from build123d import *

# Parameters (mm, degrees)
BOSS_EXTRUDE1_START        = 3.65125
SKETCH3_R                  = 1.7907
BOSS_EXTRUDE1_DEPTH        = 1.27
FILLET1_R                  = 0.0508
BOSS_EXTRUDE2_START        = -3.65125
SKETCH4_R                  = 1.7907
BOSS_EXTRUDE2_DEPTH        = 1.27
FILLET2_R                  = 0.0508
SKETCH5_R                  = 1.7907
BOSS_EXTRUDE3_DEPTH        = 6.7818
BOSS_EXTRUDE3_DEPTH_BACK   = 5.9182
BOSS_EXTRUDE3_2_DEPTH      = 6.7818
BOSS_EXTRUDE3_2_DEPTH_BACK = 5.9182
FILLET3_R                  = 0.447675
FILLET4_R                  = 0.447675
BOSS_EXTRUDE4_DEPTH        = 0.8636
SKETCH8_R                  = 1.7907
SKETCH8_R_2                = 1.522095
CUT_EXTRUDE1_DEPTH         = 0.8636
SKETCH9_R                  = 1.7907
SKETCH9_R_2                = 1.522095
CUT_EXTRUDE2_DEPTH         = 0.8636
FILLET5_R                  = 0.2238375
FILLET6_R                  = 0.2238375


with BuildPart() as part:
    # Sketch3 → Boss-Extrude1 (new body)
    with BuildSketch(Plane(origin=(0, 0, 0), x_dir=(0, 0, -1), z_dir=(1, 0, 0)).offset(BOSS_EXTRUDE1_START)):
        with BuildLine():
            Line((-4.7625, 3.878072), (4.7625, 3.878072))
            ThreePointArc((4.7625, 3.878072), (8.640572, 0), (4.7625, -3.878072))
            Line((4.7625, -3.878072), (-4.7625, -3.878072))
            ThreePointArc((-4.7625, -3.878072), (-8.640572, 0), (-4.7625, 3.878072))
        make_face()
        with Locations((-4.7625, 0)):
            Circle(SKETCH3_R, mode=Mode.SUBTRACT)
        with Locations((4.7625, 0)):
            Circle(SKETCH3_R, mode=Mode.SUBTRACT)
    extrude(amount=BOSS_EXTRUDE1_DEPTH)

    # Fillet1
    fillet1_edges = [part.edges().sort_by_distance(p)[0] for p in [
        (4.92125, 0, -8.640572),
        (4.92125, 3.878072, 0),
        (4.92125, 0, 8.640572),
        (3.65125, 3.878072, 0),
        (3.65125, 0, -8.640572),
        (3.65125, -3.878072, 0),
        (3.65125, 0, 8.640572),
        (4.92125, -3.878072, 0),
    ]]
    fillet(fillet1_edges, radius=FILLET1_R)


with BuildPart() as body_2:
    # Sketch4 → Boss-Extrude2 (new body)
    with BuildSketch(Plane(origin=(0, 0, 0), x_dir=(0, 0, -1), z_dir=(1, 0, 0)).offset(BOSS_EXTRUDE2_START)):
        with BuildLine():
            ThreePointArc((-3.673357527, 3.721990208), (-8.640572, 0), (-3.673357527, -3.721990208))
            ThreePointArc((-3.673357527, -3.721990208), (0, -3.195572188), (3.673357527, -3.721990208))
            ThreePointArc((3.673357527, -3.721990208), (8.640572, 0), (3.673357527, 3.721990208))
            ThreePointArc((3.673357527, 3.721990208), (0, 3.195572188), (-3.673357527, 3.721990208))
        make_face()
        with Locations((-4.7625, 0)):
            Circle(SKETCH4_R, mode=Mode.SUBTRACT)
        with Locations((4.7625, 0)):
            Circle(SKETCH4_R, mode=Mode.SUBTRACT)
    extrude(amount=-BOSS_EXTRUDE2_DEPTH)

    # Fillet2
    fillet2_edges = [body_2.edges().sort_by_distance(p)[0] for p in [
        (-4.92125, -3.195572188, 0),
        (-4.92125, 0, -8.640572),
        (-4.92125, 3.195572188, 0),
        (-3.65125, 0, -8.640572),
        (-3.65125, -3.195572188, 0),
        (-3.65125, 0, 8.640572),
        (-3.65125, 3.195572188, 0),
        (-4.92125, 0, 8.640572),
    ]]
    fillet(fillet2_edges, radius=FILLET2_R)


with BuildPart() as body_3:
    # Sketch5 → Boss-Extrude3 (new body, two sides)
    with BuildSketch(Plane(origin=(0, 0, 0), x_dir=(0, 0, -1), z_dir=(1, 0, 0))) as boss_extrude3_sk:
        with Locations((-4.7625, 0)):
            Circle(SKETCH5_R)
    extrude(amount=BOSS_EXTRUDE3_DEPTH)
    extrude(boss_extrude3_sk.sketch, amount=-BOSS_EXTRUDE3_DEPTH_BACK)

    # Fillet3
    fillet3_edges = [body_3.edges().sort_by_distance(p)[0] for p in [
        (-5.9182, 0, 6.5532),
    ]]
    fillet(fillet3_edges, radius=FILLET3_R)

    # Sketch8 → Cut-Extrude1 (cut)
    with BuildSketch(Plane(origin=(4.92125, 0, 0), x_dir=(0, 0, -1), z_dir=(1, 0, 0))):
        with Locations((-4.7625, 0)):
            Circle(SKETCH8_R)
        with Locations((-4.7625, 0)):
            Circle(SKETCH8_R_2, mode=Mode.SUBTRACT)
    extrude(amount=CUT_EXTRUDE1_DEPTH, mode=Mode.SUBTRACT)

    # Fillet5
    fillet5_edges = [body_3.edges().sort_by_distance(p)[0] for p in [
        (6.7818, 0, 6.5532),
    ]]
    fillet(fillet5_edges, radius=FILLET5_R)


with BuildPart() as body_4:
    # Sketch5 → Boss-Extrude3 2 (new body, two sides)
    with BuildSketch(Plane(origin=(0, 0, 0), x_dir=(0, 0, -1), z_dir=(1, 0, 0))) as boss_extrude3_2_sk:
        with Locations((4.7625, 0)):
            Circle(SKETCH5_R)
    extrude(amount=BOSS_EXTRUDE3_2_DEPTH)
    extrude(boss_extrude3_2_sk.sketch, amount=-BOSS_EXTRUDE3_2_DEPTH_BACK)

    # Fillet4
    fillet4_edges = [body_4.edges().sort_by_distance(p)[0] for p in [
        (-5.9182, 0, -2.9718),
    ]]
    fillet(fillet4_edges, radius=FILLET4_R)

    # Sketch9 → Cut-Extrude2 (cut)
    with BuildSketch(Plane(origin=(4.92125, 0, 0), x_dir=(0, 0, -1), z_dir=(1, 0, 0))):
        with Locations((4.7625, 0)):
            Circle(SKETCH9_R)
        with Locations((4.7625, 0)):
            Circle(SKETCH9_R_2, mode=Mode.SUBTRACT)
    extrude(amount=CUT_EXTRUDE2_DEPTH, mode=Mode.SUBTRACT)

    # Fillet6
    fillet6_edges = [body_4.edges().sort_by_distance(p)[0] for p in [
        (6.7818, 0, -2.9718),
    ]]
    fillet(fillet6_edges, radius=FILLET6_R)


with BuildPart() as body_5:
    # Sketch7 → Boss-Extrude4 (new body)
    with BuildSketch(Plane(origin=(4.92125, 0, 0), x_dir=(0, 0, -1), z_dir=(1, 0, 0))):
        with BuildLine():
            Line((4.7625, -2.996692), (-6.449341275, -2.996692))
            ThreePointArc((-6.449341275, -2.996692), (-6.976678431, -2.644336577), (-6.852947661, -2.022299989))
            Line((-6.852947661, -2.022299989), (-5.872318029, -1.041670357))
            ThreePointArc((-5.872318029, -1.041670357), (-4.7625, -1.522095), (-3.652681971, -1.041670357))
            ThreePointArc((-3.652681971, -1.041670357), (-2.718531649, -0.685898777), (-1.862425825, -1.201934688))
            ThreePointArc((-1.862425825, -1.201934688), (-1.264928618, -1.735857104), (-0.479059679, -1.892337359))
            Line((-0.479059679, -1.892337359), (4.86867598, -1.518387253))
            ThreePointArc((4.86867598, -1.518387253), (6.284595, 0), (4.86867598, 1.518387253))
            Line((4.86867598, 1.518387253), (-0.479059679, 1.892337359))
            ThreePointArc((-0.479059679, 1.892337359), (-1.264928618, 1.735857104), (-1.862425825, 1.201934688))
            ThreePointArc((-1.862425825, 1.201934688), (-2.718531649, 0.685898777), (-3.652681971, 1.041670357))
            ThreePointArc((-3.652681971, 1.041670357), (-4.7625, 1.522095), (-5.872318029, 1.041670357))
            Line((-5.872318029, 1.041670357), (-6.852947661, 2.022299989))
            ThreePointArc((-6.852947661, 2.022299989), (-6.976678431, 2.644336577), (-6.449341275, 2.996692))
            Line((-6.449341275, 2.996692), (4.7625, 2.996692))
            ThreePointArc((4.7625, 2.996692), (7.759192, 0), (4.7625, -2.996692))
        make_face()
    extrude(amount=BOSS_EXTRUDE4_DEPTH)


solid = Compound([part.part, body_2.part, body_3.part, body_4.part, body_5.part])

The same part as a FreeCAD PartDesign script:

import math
import FreeCAD as App
import Part
import Sketcher
Q = App.Units.Quantity


def edges_at(feature, points):
    """Names of the edges that pass closest to the given points."""
    edges = feature.Shape.Edges
    near = lambda p: min(range(len(edges)), key=lambda i: edges[i].distToShape(Part.Vertex(*p))[0])
    return sorted({f"Edge{near(p) + 1}" for p in points})

doc = App.newDocument("Part")
body = doc.addObject("PartDesign::Body", "Body")

# Sketch on YZ plane
sketch1 = body.newObject("Sketcher::SketchObject", "Sketch")
sketch1.AttachmentSupport = (doc.getObject("YZ_Plane"), [""])
sketch1.MapMode = "FlatFace"
sketch1.AttachmentOffset = App.Placement(App.Vector(0, 0, 3.65125), App.Rotation())
sketch1.addGeometry(Part.LineSegment(App.Vector(3.9, -4.8, 0), App.Vector(3.9, 4.8, 0)), False)
sketch1.addGeometry(Part.ArcOfCircle(Part.Circle(App.Vector(0, 4.8, 0), App.Vector(0, 0, 1), 3.9), math.radians(0), math.radians(180)), False)
sketch1.addGeometry(Part.LineSegment(App.Vector(-3.9, 4.8, 0), App.Vector(-3.9, -4.8, 0)), False)
sketch1.addGeometry(Part.ArcOfCircle(Part.Circle(App.Vector(0, -4.8, 0), App.Vector(0, 0, 1), 3.9), math.radians(180), math.radians(360)), False)
sketch1.addGeometry(Part.Circle(App.Vector(0, -4.8, 0), App.Vector(0, 0, 1), 1.8), False)
sketch1.addGeometry(Part.Circle(App.Vector(0, 4.8, 0), App.Vector(0, 0, 1), 1.8), False)
sketch1.addConstraint(Sketcher.Constraint("Tangent", 0, 2, 1, 1))
sketch1.addConstraint(Sketcher.Constraint("Tangent", 1, 2, 2, 1))
sketch1.addConstraint(Sketcher.Constraint("Tangent", 2, 2, 3, 1))
sketch1.addConstraint(Sketcher.Constraint("Tangent", 3, 2, 0, 1))
sketch1.addConstraint(Sketcher.Constraint("Vertical", 0))
sketch1.addConstraint(Sketcher.Constraint("Vertical", 2))
sketch1.addConstraint(Sketcher.Constraint("Coincident", 4, 3, 3, 3))
sketch1.addConstraint(Sketcher.Constraint("Coincident", 5, 3, 1, 3))
sketch1.addConstraint(Sketcher.Constraint("Equal", 4, 5))
sketch1.addConstraint(Sketcher.Constraint("Symmetric", 1, 3, 3, 3, -1, 1))
sketch1.addConstraint(Sketcher.Constraint("Diameter", 4, Q("0.141 in")))
sketch1.addConstraint(Sketcher.Constraint("DistanceY", 0, 1, 0, 2, Q("0.375 in")))
sketch1.addConstraint(Sketcher.Constraint("Radius", 1, 3.878072))
pad1 = body.newObject("PartDesign::Pad", "Pad")
pad1.Profile = sketch1
pad1.Length = Q("0.05 in")
doc.recompute()

fillet = body.newObject("PartDesign::Fillet", "Fillet")
fillet.Base = (pad1, edges_at(pad1, [
    (4.921, 0, -8.641),
    (4.921, 3.878, 0),
    (4.921, 0, 8.641),
    (3.651, 3.878, 0),
    (3.651, 0, -8.641),
    (3.651, -3.878, 0),
    (3.651, 0, 8.641),
    (4.921, -3.878, 0),
]))
fillet.Radius = Q("0.002 in")
body2 = doc.addObject("PartDesign::Body", "Body001")

# Sketch on YZ plane
sketch2 = body2.newObject("Sketcher::SketchObject", "Sketch001")
sketch2.AttachmentSupport = (doc.getObject("YZ_Plane001"), [""])
sketch2.MapMode = "FlatFace"
sketch2.AttachmentOffset = App.Placement(App.Vector(0, 0, -3.65125), App.Rotation())
sketch2.addGeometry(Part.ArcOfCircle(Part.Circle(App.Vector(0, 4.8, 0), App.Vector(0, 0, 1), 3.9), math.radians(-16), math.radians(196)), False)
sketch2.addGeometry(Part.ArcOfCircle(Part.Circle(App.Vector(-16.3, 0, 0), App.Vector(0, 0, 1), 13.1), math.radians(-16), math.radians(16)), False)
sketch2.addGeometry(Part.ArcOfCircle(Part.Circle(App.Vector(0, -4.8, 0), App.Vector(0, 0, 1), 3.9), math.radians(164), math.radians(376)), False)
sketch2.addGeometry(Part.ArcOfCircle(Part.Circle(App.Vector(16.3, 0, 0), App.Vector(0, 0, 1), 13.1), math.radians(164), math.radians(196)), False)
sketch2.addGeometry(Part.Circle(App.Vector(0, 4.8, 0), App.Vector(0, 0, 1), 1.8), False)
sketch2.addGeometry(Part.Circle(App.Vector(0, -4.8, 0), App.Vector(0, 0, 1), 1.8), False)
sketch2.addConstraint(Sketcher.Constraint("Tangent", 0, 2, 1, 2))
sketch2.addConstraint(Sketcher.Constraint("Tangent", 1, 1, 2, 1))
sketch2.addConstraint(Sketcher.Constraint("Tangent", 2, 2, 3, 2))
sketch2.addConstraint(Sketcher.Constraint("Tangent", 3, 1, 0, 1))
sketch2.addConstraint(Sketcher.Constraint("Coincident", 4, 3, 0, 3))
sketch2.addConstraint(Sketcher.Constraint("Coincident", 5, 3, 2, 3))
sketch2.addConstraint(Sketcher.Constraint("Equal", 0, 2))
sketch2.addConstraint(Sketcher.Constraint("Equal", 1, 3))
sketch2.addConstraint(Sketcher.Constraint("Equal", 4, 5))
sketch2.addConstraint(Sketcher.Constraint("Symmetric", 0, 3, 2, 3, -1, 1))
sketch2.addConstraint(Sketcher.Constraint("PointOnObject", 0, 3, -2))
sketch2.addConstraint(Sketcher.Constraint("Diameter", 4, Q("0.141 in")))
sketch2.addConstraint(Sketcher.Constraint("DistanceY", -1, 1, 0, 3, Q("0.1875 in")))
sketch2.addConstraint(Sketcher.Constraint("Radius", 0, 3.878072))
sketch2.addConstraint(Sketcher.Constraint("Radius", 1, 13.079597))
pad2 = body2.newObject("PartDesign::Pad", "Pad001")
pad2.Profile = sketch2
pad2.Length = Q("0.05 in")
pad2.Reversed = True
doc.recompute()

fillet2 = body2.newObject("PartDesign::Fillet", "Fillet001")
fillet2.Base = (pad2, edges_at(pad2, [
    (-4.921, -3.196, 0),
    (-4.921, 0, -8.641),
    (-4.921, 3.196, 0),
    (-3.651, 0, -8.641),
    (-3.651, -3.196, 0),
    (-3.651, 0, 8.641),
    (-3.651, 3.196, 0),
    (-4.921, 0, 8.641),
]))
fillet2.Radius = Q("0.002 in")
body3 = doc.addObject("PartDesign::Body", "Body002")

# Sketch on YZ plane
sketch3 = body3.newObject("Sketcher::SketchObject", "Sketch002")
sketch3.AttachmentSupport = (doc.getObject("YZ_Plane002"), [""])
sketch3.MapMode = "FlatFace"
sketch3.addGeometry(Part.Circle(App.Vector(0, 4.8, 0), App.Vector(0, 0, 1), 1.8), False)
sketch3.addConstraint(Sketcher.Constraint("PointOnObject", 0, 3, -2))
sketch3.addConstraint(Sketcher.Constraint("Diameter", 0, Q("0.141 in")))
sketch3.addConstraint(Sketcher.Constraint("DistanceY", -1, 1, 0, 3, Q("0.1875 in")))
pad3 = body3.newObject("PartDesign::Pad", "Pad002")
pad3.Profile = sketch3
pad3.Type = "TwoLengths"
pad3.Length = Q("0.267 in")
pad3.Length2 = Q("0.233 in")
doc.recompute()

fillet3 = body3.newObject("PartDesign::Fillet", "Fillet002")
fillet3.Base = (pad3, edges_at(pad3, [(-5.918, 0, 6.553)]))
fillet3.Radius = 0.447675

# Sketch on YZ plane
sketch4 = body3.newObject("Sketcher::SketchObject", "Sketch003")
sketch4.AttachmentSupport = (doc.getObject("YZ_Plane002"), [""])
sketch4.MapMode = "FlatFace"
sketch4.AttachmentOffset = App.Placement(App.Vector(0, 0, 4.92125), App.Rotation())
sketch4.addGeometry(Part.Circle(App.Vector(0, 4.8, 0), App.Vector(0, 0, 1), 1.8), False)
sketch4.addGeometry(Part.Circle(App.Vector(0, 4.8, 0), App.Vector(0, 0, 1), 1.5), False)
sketch4.addConstraint(Sketcher.Constraint("Coincident", 1, 3, 0, 3))
sketch4.addConstraint(Sketcher.Constraint("PointOnObject", 0, 3, -2))
sketch4.addConstraint(Sketcher.Constraint("Diameter", 0, Q("0.141 in")))
sketch4.addConstraint(Sketcher.Constraint("Diameter", 1, 3.04419))
sketch4.addConstraint(Sketcher.Constraint("DistanceY", -1, 1, 0, 3, Q("0.1875 in")))
pocket1 = body3.newObject("PartDesign::Pocket", "Pocket")
pocket1.Profile = sketch4
pocket1.Length = Q("0.034 in")
pocket1.Reversed = True
doc.recompute()

fillet4 = body3.newObject("PartDesign::Fillet", "Fillet003")
fillet4.Base = (pocket1, edges_at(pocket1, [(6.782, 0, 6.553)]))
fillet4.Radius = 0.223837
body4 = doc.addObject("PartDesign::Body", "Body003")

# Sketch on YZ plane
sketch5 = body4.newObject("Sketcher::SketchObject", "Sketch004")
sketch5.AttachmentSupport = (doc.getObject("YZ_Plane003"), [""])
sketch5.MapMode = "FlatFace"
sketch5.addGeometry(Part.Circle(App.Vector(0, -4.8, 0), App.Vector(0, 0, 1), 1.8), False)
sketch5.addConstraint(Sketcher.Constraint("PointOnObject", 0, 3, -2))
sketch5.addConstraint(Sketcher.Constraint("Diameter", 0, Q("0.141 in")))
sketch5.addConstraint(Sketcher.Constraint("DistanceY", 0, 3, -1, 1, Q("0.1875 in")))
pad4 = body4.newObject("PartDesign::Pad", "Pad003")
pad4.Profile = sketch5
pad4.Type = "TwoLengths"
pad4.Length = Q("0.267 in")
pad4.Length2 = Q("0.233 in")
doc.recompute()

fillet5 = body4.newObject("PartDesign::Fillet", "Fillet004")
fillet5.Base = (pad4, edges_at(pad4, [(-5.918, 0, -2.972)]))
fillet5.Radius = 0.447675

# Sketch on YZ plane
sketch6 = body4.newObject("Sketcher::SketchObject", "Sketch005")
sketch6.AttachmentSupport = (doc.getObject("YZ_Plane003"), [""])
sketch6.MapMode = "FlatFace"
sketch6.AttachmentOffset = App.Placement(App.Vector(0, 0, 4.92125), App.Rotation())
sketch6.addGeometry(Part.Circle(App.Vector(0, -4.8, 0), App.Vector(0, 0, 1), 1.8), False)
sketch6.addGeometry(Part.Circle(App.Vector(0, -4.8, 0), App.Vector(0, 0, 1), 1.5), False)
sketch6.addConstraint(Sketcher.Constraint("Coincident", 1, 3, 0, 3))
sketch6.addConstraint(Sketcher.Constraint("PointOnObject", 0, 3, -2))
sketch6.addConstraint(Sketcher.Constraint("Diameter", 0, Q("0.141 in")))
sketch6.addConstraint(Sketcher.Constraint("Diameter", 1, 3.04419))
sketch6.addConstraint(Sketcher.Constraint("DistanceY", 0, 3, -1, 1, Q("0.1875 in")))
pocket2 = body4.newObject("PartDesign::Pocket", "Pocket001")
pocket2.Profile = sketch6
pocket2.Length = Q("0.034 in")
pocket2.Reversed = True
doc.recompute()

fillet6 = body4.newObject("PartDesign::Fillet", "Fillet005")
fillet6.Base = (pocket2, edges_at(pocket2, [(6.782, 0, -2.972)]))
fillet6.Radius = 0.223837
body5 = doc.addObject("PartDesign::Body", "Body004")

# Sketch on YZ plane
sketch7 = body5.newObject("Sketcher::SketchObject", "Sketch006")
sketch7.AttachmentSupport = (doc.getObject("YZ_Plane004"), [""])
sketch7.MapMode = "FlatFace"
sketch7.AttachmentOffset = App.Placement(App.Vector(0, 0, 4.92125), App.Rotation())
sketch7.addGeometry(Part.LineSegment(App.Vector(-3, 6.4, 0), App.Vector(-3, -4.8, 0)), False)
sketch7.addGeometry(Part.ArcOfCircle(Part.Circle(App.Vector(0, -4.8, 0), App.Vector(0, 0, 1), 3), math.radians(180), math.radians(360)), False)
sketch7.addGeometry(Part.LineSegment(App.Vector(3, -4.8, 0), App.Vector(3, 6.4, 0)), False)
sketch7.addGeometry(Part.ArcOfCircle(Part.Circle(App.Vector(2.4, 6.4, 0), App.Vector(0, 0, 1), 0.6), math.radians(0), math.radians(135)), False)
sketch7.addGeometry(Part.LineSegment(App.Vector(2, 6.9, 0), App.Vector(1, 5.9, 0)), False)
sketch7.addGeometry(Part.ArcOfCircle(Part.Circle(App.Vector(0, 4.8, 0), App.Vector(0, 0, 1), 1.5), math.radians(-47), math.radians(47)), False)
sketch7.addGeometry(Part.ArcOfCircle(Part.Circle(App.Vector(1.8, 2.8, 0), App.Vector(0, 0, 1), 1.1), math.radians(133), math.radians(237)), False)
sketch7.addGeometry(Part.ArcOfCircle(Part.Circle(App.Vector(0.4, 0.6, 0), App.Vector(0, 0, 1), 1.5), math.radians(-4), math.radians(57)), False)
sketch7.addGeometry(Part.LineSegment(App.Vector(1.9, 0.5, 0), App.Vector(1.5, -4.9, 0)), False)
sketch7.addGeometry(Part.ArcOfCircle(Part.Circle(App.Vector(0, -4.8, 0), App.Vector(0, 0, 1), 1.5), math.radians(-176), math.radians(-4)), False)
sketch7.addGeometry(Part.LineSegment(App.Vector(-1.5, -4.9, 0), App.Vector(-1.9, 0.5, 0)), False)
sketch7.addGeometry(Part.ArcOfCircle(Part.Circle(App.Vector(-0.4, 0.6, 0), App.Vector(0, 0, 1), 1.5), math.radians(123), math.radians(184)), False)
sketch7.addGeometry(Part.ArcOfCircle(Part.Circle(App.Vector(-1.8, 2.8, 0), App.Vector(0, 0, 1), 1.1), math.radians(-57), math.radians(47)), False)
sketch7.addGeometry(Part.ArcOfCircle(Part.Circle(App.Vector(0, 4.8, 0), App.Vector(0, 0, 1), 1.5), math.radians(133), math.radians(227)), False)
sketch7.addGeometry(Part.LineSegment(App.Vector(-1, 5.9, 0), App.Vector(-2, 6.9, 0)), False)
sketch7.addGeometry(Part.ArcOfCircle(Part.Circle(App.Vector(-2.4, 6.4, 0), App.Vector(0, 0, 1), 0.6), math.radians(45), math.radians(180)), False)
sketch7.addConstraint(Sketcher.Constraint("Tangent", 0, 2, 1, 1))
sketch7.addConstraint(Sketcher.Constraint("Tangent", 1, 2, 2, 1))
sketch7.addConstraint(Sketcher.Constraint("Tangent", 2, 2, 3, 1))
sketch7.addConstraint(Sketcher.Constraint("Tangent", 3, 2, 4, 1))
sketch7.addConstraint(Sketcher.Constraint("Coincident", 4, 2, 5, 2))
sketch7.addConstraint(Sketcher.Constraint("Tangent", 5, 1, 6, 1))
sketch7.addConstraint(Sketcher.Constraint("Tangent", 6, 2, 7, 2))
sketch7.addConstraint(Sketcher.Constraint("Tangent", 7, 1, 8, 1))
sketch7.addConstraint(Sketcher.Constraint("Tangent", 8, 2, 9, 2))
sketch7.addConstraint(Sketcher.Constraint("Tangent", 9, 1, 10, 1))
sketch7.addConstraint(Sketcher.Constraint("Tangent", 10, 2, 11, 2))
sketch7.addConstraint(Sketcher.Constraint("Tangent", 11, 1, 12, 1))
sketch7.addConstraint(Sketcher.Constraint("Tangent", 12, 2, 13, 2))
sketch7.addConstraint(Sketcher.Constraint("Coincident", 13, 1, 14, 1))
sketch7.addConstraint(Sketcher.Constraint("Tangent", 14, 2, 15, 1))
sketch7.addConstraint(Sketcher.Constraint("Tangent", 15, 2, 0, 1))
sketch7.addConstraint(Sketcher.Constraint("Vertical", 0))
sketch7.addConstraint(Sketcher.Constraint("Vertical", 2))
sketch7.addConstraint(Sketcher.Constraint("Coincident", 9, 3, 1, 3))
sketch7.addConstraint(Sketcher.Constraint("Coincident", 13, 3, 5, 3))
sketch7.addConstraint(Sketcher.Constraint("Equal", 5, 7))
sketch7.addConstraint(Sketcher.Constraint("Equal", 7, 9))
sketch7.addConstraint(Sketcher.Constraint("Equal", 9, 11))
sketch7.addConstraint(Sketcher.Constraint("Equal", 6, 12))
sketch7.addConstraint(Sketcher.Constraint("Equal", 11, 13))
sketch7.addConstraint(Sketcher.Constraint("Equal", 3, 15))
sketch7.addConstraint(Sketcher.Constraint("Symmetric", 1, 3, 5, 3, -1, 1))
sketch7.addConstraint(Sketcher.Constraint("Symmetric", 7, 3, 11, 3, -2))
sketch7.addConstraint(Sketcher.Constraint("Symmetric", 3, 3, 15, 3, -2))
sketch7.addConstraint(Sketcher.Constraint("Perpendicular", 4, 14))
sketch7.addConstraint(Sketcher.Constraint("Horizontal", 4, 2, 13, 1))
sketch7.addConstraint(Sketcher.Constraint("Vertical", 4, 2, 5, 1))
sketch7.addConstraint(Sketcher.Constraint("Angle", 8, Q("-94 deg")))
sketch7.addConstraint(Sketcher.Constraint("DistanceY", 1, 3, -1, 1, Q("0.1875 in")))
sketch7.addConstraint(Sketcher.Constraint("Radius", 1, 2.996692))
sketch7.addConstraint(Sketcher.Constraint("Radius", 6, 1.141571))
sketch7.addConstraint(Sketcher.Constraint("Radius", 3, 0.570786))
sketch7.addConstraint(Sketcher.Constraint("Radius", 5, 1.522095))
sketch7.addConstraint(Sketcher.Constraint("DistanceY", 0, 2, 0, 1, 11.211841))
pad5 = body5.newObject("PartDesign::Pad", "Pad004")
pad5.Profile = sketch7
pad5.Length = Q("0.034 in")

doc.recompute()
